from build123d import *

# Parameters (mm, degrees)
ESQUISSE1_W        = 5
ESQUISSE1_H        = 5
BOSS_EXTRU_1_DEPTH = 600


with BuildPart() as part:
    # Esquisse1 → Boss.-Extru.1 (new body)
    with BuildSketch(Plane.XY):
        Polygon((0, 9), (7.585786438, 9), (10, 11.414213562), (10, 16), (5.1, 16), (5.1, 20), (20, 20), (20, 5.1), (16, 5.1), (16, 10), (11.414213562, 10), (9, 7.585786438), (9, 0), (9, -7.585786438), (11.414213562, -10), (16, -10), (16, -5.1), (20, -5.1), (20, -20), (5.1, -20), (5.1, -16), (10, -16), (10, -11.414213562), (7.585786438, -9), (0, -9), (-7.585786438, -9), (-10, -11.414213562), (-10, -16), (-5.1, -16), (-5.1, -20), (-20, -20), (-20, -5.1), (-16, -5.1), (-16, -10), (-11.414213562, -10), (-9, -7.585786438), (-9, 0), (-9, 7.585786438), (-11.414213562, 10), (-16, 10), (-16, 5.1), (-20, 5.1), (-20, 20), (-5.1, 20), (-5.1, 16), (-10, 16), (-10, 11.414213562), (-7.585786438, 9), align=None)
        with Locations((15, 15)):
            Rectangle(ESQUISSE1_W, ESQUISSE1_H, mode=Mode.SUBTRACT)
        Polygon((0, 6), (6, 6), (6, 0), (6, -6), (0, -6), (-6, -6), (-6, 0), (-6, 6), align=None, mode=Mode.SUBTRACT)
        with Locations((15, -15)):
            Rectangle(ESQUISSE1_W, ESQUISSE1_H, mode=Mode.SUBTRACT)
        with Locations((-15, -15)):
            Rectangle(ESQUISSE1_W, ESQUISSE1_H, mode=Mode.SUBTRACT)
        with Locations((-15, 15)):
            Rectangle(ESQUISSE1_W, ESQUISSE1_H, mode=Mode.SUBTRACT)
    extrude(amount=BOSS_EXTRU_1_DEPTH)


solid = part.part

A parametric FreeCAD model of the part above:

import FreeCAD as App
import Part
import Sketcher


def add_polygon(sketch, points):
    """Adds a closed chain of lines whose ends are joined by coincident constraints."""
    first, n = sketch.GeometryCount, len(points)
    for a, b in zip(points, points[1:] + points[:1]):
        sketch.addGeometry(Part.LineSegment(App.Vector(*a, 0), App.Vector(*b, 0)), False)
    for i in range(n):
        sketch.addConstraint(Sketcher.Constraint("Coincident", first + i, 2, first + (i + 1) % n, 1))

doc = App.newDocument("Part")
body = doc.addObject("PartDesign::Body", "Body")

# Sketch on XY plane
sketch1 = body.newObject("Sketcher::SketchObject", "Sketch")
sketch1.AttachmentSupport = (doc.getObject("XY_Plane"), [""])
sketch1.MapMode = "FlatFace"
add_polygon(sketch1, [(7.6, 9), (-7.6, 9), (-10, 11.4), (-10, 16), (-5.1, 16), (-5.1, 20), (-20, 20), (-20, 5.1), (-16, 5.1), (-16, 10), (-11.4, 10), (-9, 7.6), (-9, -7.6), (-11.4, -10), (-16, -10), (-16, -5.1), (-20, -5.1), (-20, -20), (-5.1, -20), (-5.1, -16), (-10, -16), (-10, -11.4), (-7.6, -9), (7.6, -9), (10, -11.4), (10, -16), (5.1, -16), (5.1, -20), (20, -20), (20, -5.1), (16, -5.1), (16, -10), (11.4, -10), (9, -7.6), (9, 7.6), (11.4, 10), (16, 10), (16, 5.1), (20, 5.1), (20, 20), (5.1, 20), (5.1, 16), (10, 16), (10, 11.4)])  # lines 0-43
add_polygon(sketch1, [(12.5, -17.5), (12.5, -12.5), (17.5, -12.5), (17.5, -17.5)])  # lines 44-47
add_polygon(sketch1, [(-17.5, -17.5), (-17.5, -12.5), (-12.5, -12.5), (-12.5, -17.5)])  # lines 48-51
add_polygon(sketch1, [(12.5, 12.5), (12.5, 17.5), (17.5, 17.5), (17.5, 12.5)])  # lines 52-55
add_polygon(sketch1, [(6, 6), (6, -6), (-6, -6), (-6, 6)])  # lines 56-59
add_polygon(sketch1, [(-17.5, 12.5), (-17.5, 17.5), (-12.5, 17.5), (-12.5, 12.5)])  # lines 60-63
sketch1.addConstraint([
    Sketcher.Constraint("Horizontal", 0),
    Sketcher.Constraint("Vertical", 2),
    Sketcher.Constraint("Horizontal", 3),
    Sketcher.Constraint("Vertical", 4),
    Sketcher.Constraint("Horizontal", 5),
    Sketcher.Constraint("Vertical", 6),
    Sketcher.Constraint("Horizontal", 7),
    Sketcher.Constraint("Vertical", 8),
    Sketcher.Constraint("Horizontal", 9),
    Sketcher.Constraint("Vertical", 11),
    Sketcher.Constraint("Horizontal", 13),
    Sketcher.Constraint("Vertical", 14),
    Sketcher.Constraint("Horizontal", 15),
    Sketcher.Constraint("Vertical", 16),
    Sketcher.Constraint("Horizontal", 17),
    Sketcher.Constraint("Vertical", 18),
    Sketcher.Constraint("Horizontal", 19),
    Sketcher.Constraint("Vertical", 20),
    Sketcher.Constraint("Horizontal", 22),
    Sketcher.Constraint("Vertical", 24),
    Sketcher.Constraint("Horizontal", 25),
    Sketcher.Constraint("Vertical", 26),
    Sketcher.Constraint("Horizontal", 27),
    Sketcher.Constraint("Vertical", 28),
    Sketcher.Constraint("Horizontal", 29),
    Sketcher.Constraint("Vertical", 30),
    Sketcher.Constraint("Horizontal", 31),
    Sketcher.Constraint("Vertical", 33),
    Sketcher.Constraint("Horizontal", 35),
    Sketcher.Constraint("Vertical", 36),
    Sketcher.Constraint("Horizontal", 37),
    Sketcher.Constraint("Vertical", 38),
    Sketcher.Constraint("Horizontal", 39),
    Sketcher.Constraint("Vertical", 40),
    Sketcher.Constraint("Horizontal", 41),
    Sketcher.Constraint("Vertical", 42),
    Sketcher.Constraint("Vertical", 44),
    Sketcher.Constraint("Horizontal", 45),
    Sketcher.Constraint("Vertical", 46),
    Sketcher.Constraint("Horizontal", 47),
    Sketcher.Constraint("Vertical", 48),
    Sketcher.Constraint("Horizontal", 49),
    Sketcher.Constraint("Vertical", 50),
    Sketcher.Constraint("Horizontal", 51),
    Sketcher.Constraint("Vertical", 52),
    Sketcher.Constraint("Horizontal", 53),
    Sketcher.Constraint("Vertical", 54),
    Sketcher.Constraint("Horizontal", 55),
    Sketcher.Constraint("Vertical", 56),
    Sketcher.Constraint("Horizontal", 57),
    Sketcher.Constraint("Vertical", 58),
    Sketcher.Constraint("Horizontal", 59),
    Sketcher.Constraint("Vertical", 60),
    Sketcher.Constraint("Horizontal", 61),
    Sketcher.Constraint("Vertical", 62),
    Sketcher.Constraint("Horizontal", 63),
    Sketcher.Constraint("Symmetric", 0, 2, 22, 2, -1, 1),
    Sketcher.Constraint("Symmetric", 1, 2, 23, 2, -1, 1),
    Sketcher.Constraint("Symmetric", 3, 2, 25, 2, -1, 1),
    Sketcher.Constraint("Symmetric", 5, 2, 27, 2, -1, 1),
    Sketcher.Constraint("Symmetric", 7, 2, 29, 2, -1, 1),
    Sketcher.Constraint("Symmetric", 9, 2, 31, 2, -1, 1),
    Sketcher.Constraint("Symmetric", 10, 2, 32, 2, -1, 1),
    Sketcher.Constraint("Symmetric", 12, 2, 34, 2, -1, 1),
    Sketcher.Constraint("Symmetric", 14, 2, 36, 2, -1, 1),
    Sketcher.Constraint("Symmetric", 16, 2, 38, 2, -1, 1),
    Sketcher.Constraint("Symmetric", 18, 2, 40, 2, -1, 1),
    Sketcher.Constraint("Symmetric", 20, 2, 42, 2, -1, 1),
    Sketcher.Constraint("Symmetric", 50, 2, 52, 2, -1, 1),
    Sketcher.Constraint("Symmetric", 48, 2, 54, 2, -1, 1),
    Sketcher.Constraint("Symmetric", 56, 2, 58, 2, -1, 1),
    Sketcher.Constraint("Symmetric", 46, 2, 60, 2, -1, 1),
    Sketcher.Constraint("Symmetric", 44, 2, 62, 2, -1, 1),
    Sketcher.Constraint("Symmetric", 20, 2, 23, 2, -2),
    Sketcher.Constraint("Symmetric", 18, 2, 25, 2, -2),
    Sketcher.Constraint("Symmetric", 16, 2, 27, 2, -2),
    Sketcher.Constraint("Symmetric", 14, 2, 29, 2, -2),
    Sketcher.Constraint("Symmetric", 12, 2, 31, 2, -2),
    Sketcher.Constraint("Symmetric", 45, 2, 48, 2, -2),
    Sketcher.Constraint("Symmetric", 47, 2, 50, 2, -2),
    Sketcher.Constraint("Parallel", 1, 10),
    Sketcher.Constraint("Perpendicular", 10, 12),
    Sketcher.Constraint("Parallel", 12, 21),
    Sketcher.Constraint("Perpendicular", 32, 34),
    Sketcher.Constraint("Parallel", 34, 43),
    Sketcher.Constraint("Horizontal", 11, 2, 32, 2),
    Sketcher.Constraint("Equal", 35, 2),
    Sketcher.Constraint("Equal", 37, 4),
    Sketcher.Constraint("Equal", 39, 6),
    Sketcher.Constraint("Equal", 41, 8),
    Sketcher.Constraint("Equal", 22, 11),
    Sketcher.Constraint("Equal", 63, 44),
    Sketcher.Constraint("Equal", 59, 56),
    Sketcher.Constraint("Equal", 1, 10),
    Sketcher.Constraint("DistanceX", 7, 1, 7, 2, 4.0),
    Sketcher.Constraint("DistanceX", 45, 1, 45, 2, 5.0),
    Sketcher.Constraint("DistanceX", 57, 2, 57, 1, 12.0),
    Sketcher.Constraint("DistanceX", 3, 1, 3, 2, 4.9),
    Sketcher.Constraint("DistanceX", 5, 2, 5, 1, 14.9),
    Sketcher.Constraint("DistanceY", -1, 1, 0, 2, 9.0),
    Sketcher.Constraint("DistanceX", 1, 2, -1, 1, 10.0),
    Sketcher.Constraint("DistanceX", -1, 1, 44, 2, 12.5),
    Sketcher.Constraint("DistanceY", 44, 2, -1, 1, 12.5),
    Sketcher.Constraint("DistanceX", 0, 2, 0, 1, 15.171573),
])
pad1 = body.newObject("PartDesign::Pad", "Pad")
pad1.Profile = sketch1
pad1.Length = 600

doc.recompute()
